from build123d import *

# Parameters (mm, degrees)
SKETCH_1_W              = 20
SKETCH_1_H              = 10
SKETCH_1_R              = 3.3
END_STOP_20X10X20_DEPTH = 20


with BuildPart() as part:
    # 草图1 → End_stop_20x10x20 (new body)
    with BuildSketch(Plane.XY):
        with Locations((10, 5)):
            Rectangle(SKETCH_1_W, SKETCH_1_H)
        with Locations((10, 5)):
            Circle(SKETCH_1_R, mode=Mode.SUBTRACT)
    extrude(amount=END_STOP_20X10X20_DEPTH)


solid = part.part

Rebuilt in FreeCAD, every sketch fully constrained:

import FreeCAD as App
import Part
import Sketcher
from FreeCAD import Vector
Q = App.Units.Quantity


def add_polygon(sketch, points):
    """Adds a closed chain of lines whose ends are joined by coincident constraints."""
    first, n = sketch.GeometryCount, len(points)
    for a, b in zip(points, points[1:] + points[:1]):
        sketch.addGeometry(Part.LineSegment(App.Vector(*a, 0), App.Vector(*b, 0)), False)
    for i in range(n):
        sketch.addConstraint(Sketcher.Constraint("Coincident", first + i, 2, first + (i + 1) % n, 1))

doc = App.newDocument("Part")
body = doc.addObject("PartDesign::Body", "Body")

# Sketch on XY plane
sketch1 = body.newObject("Sketcher::SketchObject", "Sketch")
sketch1.AttachmentSupport = (doc.getObject("XY_Plane"), [""])
sketch1.MapMode = "FlatFace"
add_polygon(sketch1, [(0, 10), (0, 0), (20, 0), (20, 10)])  # lines 0-3
sketch1.addGeometry(Part.Circle(Vector(10, 5, 0), Vector(0, 0, 1), 3.3), False)  # 4
sketch1.addConstraint([
    Sketcher.Constraint("Vertical", 0),
    Sketcher.Constraint("Horizontal", 1),
    Sketcher.Constraint("Vertical", 2),
    Sketcher.Constraint("Horizontal", 3),
    Sketcher.Constraint("Coincident", 0, 2, -1, 1),
    Sketcher.Constraint("Diameter", 4, Q("6.6 mm")),
    Sketcher.Constraint("DistanceX", 1, 1, 1, 2, Q("20 mm")),
    Sketcher.Constraint("DistanceY", 0, 2, 0, 1, Q("10 mm")),
    Sketcher.Constraint("DistanceX", -1, 1, 4, 3, Q("10 mm")),
    Sketcher.Constraint("DistanceY", -1, 1, 4, 3, Q("5 mm")),
])
pad1 = body.newObject("PartDesign::Pad", "Pad")
pad1.Profile = sketch1
pad1.Length = 20

doc.recompute()
